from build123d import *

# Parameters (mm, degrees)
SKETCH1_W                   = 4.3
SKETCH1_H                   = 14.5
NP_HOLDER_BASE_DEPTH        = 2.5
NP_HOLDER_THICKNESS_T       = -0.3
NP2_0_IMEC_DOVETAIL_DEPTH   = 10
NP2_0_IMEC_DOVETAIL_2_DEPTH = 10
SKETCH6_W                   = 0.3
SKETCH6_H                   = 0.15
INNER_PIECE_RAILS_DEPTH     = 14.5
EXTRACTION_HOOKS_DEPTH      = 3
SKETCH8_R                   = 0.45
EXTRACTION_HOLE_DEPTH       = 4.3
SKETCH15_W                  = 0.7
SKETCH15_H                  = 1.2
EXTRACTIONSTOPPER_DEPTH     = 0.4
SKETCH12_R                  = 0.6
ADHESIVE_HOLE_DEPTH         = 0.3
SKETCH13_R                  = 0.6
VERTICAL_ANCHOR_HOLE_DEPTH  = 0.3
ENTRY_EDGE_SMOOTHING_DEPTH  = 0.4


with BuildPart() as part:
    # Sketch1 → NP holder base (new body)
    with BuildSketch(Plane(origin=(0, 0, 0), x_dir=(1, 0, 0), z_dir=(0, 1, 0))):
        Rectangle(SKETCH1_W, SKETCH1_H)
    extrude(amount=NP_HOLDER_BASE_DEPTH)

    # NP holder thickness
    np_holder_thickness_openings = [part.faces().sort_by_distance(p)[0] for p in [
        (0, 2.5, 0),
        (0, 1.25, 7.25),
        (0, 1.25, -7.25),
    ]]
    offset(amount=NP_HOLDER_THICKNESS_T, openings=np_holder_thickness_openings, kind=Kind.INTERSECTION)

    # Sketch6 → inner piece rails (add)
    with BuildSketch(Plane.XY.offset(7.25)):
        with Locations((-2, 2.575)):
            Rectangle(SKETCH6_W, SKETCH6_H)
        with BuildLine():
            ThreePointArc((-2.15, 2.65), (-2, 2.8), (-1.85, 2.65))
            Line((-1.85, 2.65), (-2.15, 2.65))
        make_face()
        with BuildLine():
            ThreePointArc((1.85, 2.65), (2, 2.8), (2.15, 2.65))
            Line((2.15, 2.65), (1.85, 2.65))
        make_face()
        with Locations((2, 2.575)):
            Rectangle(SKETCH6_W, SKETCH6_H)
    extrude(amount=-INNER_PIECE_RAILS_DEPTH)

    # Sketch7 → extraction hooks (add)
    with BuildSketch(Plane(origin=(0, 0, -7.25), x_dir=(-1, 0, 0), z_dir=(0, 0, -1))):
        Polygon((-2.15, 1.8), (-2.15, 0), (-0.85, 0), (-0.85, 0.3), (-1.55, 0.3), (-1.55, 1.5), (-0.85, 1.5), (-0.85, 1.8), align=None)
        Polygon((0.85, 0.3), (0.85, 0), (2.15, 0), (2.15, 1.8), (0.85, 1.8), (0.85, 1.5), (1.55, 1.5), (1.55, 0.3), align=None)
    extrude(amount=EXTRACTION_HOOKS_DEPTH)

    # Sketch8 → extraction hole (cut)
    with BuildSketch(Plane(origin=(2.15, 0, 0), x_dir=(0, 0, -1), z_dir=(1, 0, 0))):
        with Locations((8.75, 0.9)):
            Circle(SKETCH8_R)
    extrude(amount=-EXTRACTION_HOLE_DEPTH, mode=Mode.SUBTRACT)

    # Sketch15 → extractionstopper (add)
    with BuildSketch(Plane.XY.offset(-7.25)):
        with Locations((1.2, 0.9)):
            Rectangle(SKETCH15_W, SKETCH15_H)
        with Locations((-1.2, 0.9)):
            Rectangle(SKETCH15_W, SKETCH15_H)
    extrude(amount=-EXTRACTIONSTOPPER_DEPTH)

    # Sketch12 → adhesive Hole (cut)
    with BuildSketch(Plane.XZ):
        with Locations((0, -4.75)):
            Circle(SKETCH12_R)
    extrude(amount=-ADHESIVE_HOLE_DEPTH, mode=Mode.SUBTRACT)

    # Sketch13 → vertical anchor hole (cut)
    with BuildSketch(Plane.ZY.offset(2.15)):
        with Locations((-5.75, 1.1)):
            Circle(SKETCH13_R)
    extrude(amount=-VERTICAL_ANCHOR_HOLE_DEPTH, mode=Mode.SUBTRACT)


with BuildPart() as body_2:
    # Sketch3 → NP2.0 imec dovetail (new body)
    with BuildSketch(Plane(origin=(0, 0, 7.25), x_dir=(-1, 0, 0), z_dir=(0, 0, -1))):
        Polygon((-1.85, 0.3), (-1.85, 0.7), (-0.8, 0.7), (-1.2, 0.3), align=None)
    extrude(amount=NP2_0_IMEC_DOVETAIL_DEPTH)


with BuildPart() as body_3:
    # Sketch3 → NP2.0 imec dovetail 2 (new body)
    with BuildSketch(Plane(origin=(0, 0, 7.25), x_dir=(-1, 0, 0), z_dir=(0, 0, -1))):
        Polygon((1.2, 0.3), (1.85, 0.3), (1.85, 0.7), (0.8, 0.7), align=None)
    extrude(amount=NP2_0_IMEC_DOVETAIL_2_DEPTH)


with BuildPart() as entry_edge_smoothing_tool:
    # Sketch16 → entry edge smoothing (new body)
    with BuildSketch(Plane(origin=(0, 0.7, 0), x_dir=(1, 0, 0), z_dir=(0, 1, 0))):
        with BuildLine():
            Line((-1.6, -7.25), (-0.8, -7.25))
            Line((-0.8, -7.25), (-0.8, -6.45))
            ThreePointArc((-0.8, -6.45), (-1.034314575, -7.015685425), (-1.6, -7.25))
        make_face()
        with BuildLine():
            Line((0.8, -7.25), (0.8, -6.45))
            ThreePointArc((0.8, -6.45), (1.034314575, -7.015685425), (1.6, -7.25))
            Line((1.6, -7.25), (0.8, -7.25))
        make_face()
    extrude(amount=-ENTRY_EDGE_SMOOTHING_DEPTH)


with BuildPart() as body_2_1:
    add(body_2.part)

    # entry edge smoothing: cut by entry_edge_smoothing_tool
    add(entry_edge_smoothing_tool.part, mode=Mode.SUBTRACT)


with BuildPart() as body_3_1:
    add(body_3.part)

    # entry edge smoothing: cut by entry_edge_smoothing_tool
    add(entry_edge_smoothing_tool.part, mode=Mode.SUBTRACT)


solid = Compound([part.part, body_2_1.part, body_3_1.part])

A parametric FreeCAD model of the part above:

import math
import FreeCAD as App
import Part
import Sketcher

V = App.Vector
Q = App.Units.Quantity


def faces_at(feature, points):
    """Names of the faces that lie closest to the given points."""
    faces = feature.Shape.Faces
    near = lambda p: min(range(len(faces)), key=lambda i: faces[i].distToShape(Part.Vertex(*p))[0])
    return sorted({f"Face{near(p) + 1}" for p in points})


def add_polygon(sketch, points):
    """Adds a closed chain of lines whose ends are joined by coincident constraints."""
    first, n = sketch.GeometryCount, len(points)
    for a, b in zip(points, points[1:] + points[:1]):
        sketch.addGeometry(Part.LineSegment(App.Vector(*a, 0), App.Vector(*b, 0)), False)
    for i in range(n):
        sketch.addConstraint(Sketcher.Constraint("Coincident", first + i, 2, first + (i + 1) % n, 1))

doc = App.newDocument("Part")
body = doc.addObject("PartDesign::Body", "Body")

sketch1 = doc.addObject("Sketcher::SketchObject", "Sketch")
body.addObject(sketch1)
sketch1.AttachmentSupport = (doc.XZ_Plane, [""])
sketch1.MapMode = "FlatFace"
add_polygon(sketch1, [(-2.1, -7.2), (-2.1, 7.2), (2.1, 7.2), (2.1, -7.2)])
sketch1.addConstraint([
    Sketcher.Constraint("Vertical", 0),
    Sketcher.Constraint("Horizontal", 1),
    Sketcher.Constraint("Vertical", 2),
    Sketcher.Constraint("Horizontal", 3),
    Sketcher.Constraint("Symmetric", 0, 2, 2, 2, -1, 1),
    Sketcher.Constraint("DistanceX", 1, 1, 1, 2, Q("4.3 mm")),
    Sketcher.Constraint("DistanceY", 0, 1, 0, 2, Q("14.5 mm")),
])
pad1 = doc.addObject("PartDesign::Pad", "Pad")
body.addObject(pad1)
pad1.Profile = sketch1
pad1.Length = 2.5
pad1.Reversed = True
doc.recompute()

thickness = doc.addObject("PartDesign::Thickness", "Thickness")
body.addObject(thickness)
thickness.Base = (pad1, faces_at(pad1, [(0, 2.5, 0), (0, 1.25, 7.25), (0, 1.25, -7.25)]))
thickness.Value = 0.3
thickness.Reversed = True
thickness.Join = "Intersection"

sketch2 = doc.addObject("Sketcher::SketchObject", "Sketch001")
body.addObject(sketch2)
sketch2.AttachmentSupport = (doc.XY_Plane, [""])
sketch2.MapMode = "FlatFace"
sketch2.AttachmentOffset = App.Placement(V(0, 0, 7.25), App.Rotation())
sketch2.addGeometry([
    Part.LineSegment(V(-2.15, 2.65, 0), V(-2.15, 2.5, 0)),
    Part.LineSegment(V(-2.15, 2.5, 0), V(-1.85, 2.5, 0)),
    Part.LineSegment(V(-1.85, 2.5, 0), V(-1.85, 2.65, 0)),
    Part.ArcOfCircle(Part.Circle(V(-2, 2.65, 0), V(0, 0, 1), 0.15), math.radians(0), math.radians(180)),
    Part.ArcOfCircle(Part.Circle(V(2, 2.65, 0), V(0, 0, 1), 0.15), math.radians(0), math.radians(180)),
    Part.LineSegment(V(1.85, 2.65, 0), V(1.85, 2.5, 0)),
    Part.LineSegment(V(1.85, 2.5, 0), V(2.15, 2.5, 0)),
    Part.LineSegment(V(2.15, 2.5, 0), V(2.15, 2.65, 0)),
], False)
sketch2.addConstraint([
    Sketcher.Constraint("Coincident", 0, 2, 1, 1),
    Sketcher.Constraint("Coincident", 1, 2, 2, 1),
    Sketcher.Constraint("Tangent", 2, 2, 3, 1),
    Sketcher.Constraint("Tangent", 3, 2, 0, 1),
    Sketcher.Constraint("Tangent", 4, 2, 5, 1),
    Sketcher.Constraint("Coincident", 5, 2, 6, 1),
    Sketcher.Constraint("Coincident", 6, 2, 7, 1),
    Sketcher.Constraint("Tangent", 7, 2, 4, 1),
    Sketcher.Constraint("Vertical", 0),
    Sketcher.Constraint("Horizontal", 1),
    Sketcher.Constraint("Vertical", 2),
    Sketcher.Constraint("Vertical", 5),
    Sketcher.Constraint("Horizontal", 6),
    Sketcher.Constraint("Vertical", 7),
    Sketcher.Constraint("Equal", 3, 4),
    Sketcher.Constraint("Symmetric", 3, 3, 4, 3, -2),
    Sketcher.Constraint("Horizontal", 1, 2, 5, 2),
    Sketcher.Constraint("Radius", 3, Q("0.15 mm")),
    Sketcher.Constraint("DistanceX", 3, 3, -1, 1, Q("2 mm")),
    Sketcher.Constraint("DistanceY", 0, 2, 0, 1, Q("0.15 mm")),
    Sketcher.Constraint("DistanceY", -1, 1, 0, 2, Q("2.5 mm")),
])
pad2 = doc.addObject("PartDesign::Pad", "Pad001")
body.addObject(pad2)
pad2.Profile = sketch2
pad2.Length = 14.5
pad2.Reversed = True

sketch3 = doc.addObject("Sketcher::SketchObject", "Sketch002")
body.addObject(sketch3)
sketch3.AttachmentSupport = (doc.XY_Plane, [""])
sketch3.MapMode = "FlatFace"
sketch3.AttachmentOffset = App.Placement(V(0, 0, -7.25), App.Rotation())
add_polygon(sketch3, [(2.15, 1.8), (2.15, 0), (0.85, 0), (0.85, 0.3), (1.55, 0.3), (1.55, 1.5), (0.85, 1.5), (0.85, 1.8)])
add_polygon(sketch3, [(-0.85, 0.3), (-0.85, 0), (-2.15, 0), (-2.15, 1.8), (-0.85, 1.8), (-0.85, 1.5), (-1.55, 1.5), (-1.55, 0.3)])
sketch3.addConstraint([
    Sketcher.Constraint("Vertical", 0),
    Sketcher.Constraint("Horizontal", 1),
    Sketcher.Constraint("Vertical", 2),
    Sketcher.Constraint("Horizontal", 3),
    Sketcher.Constraint("Vertical", 4),
    Sketcher.Constraint("Horizontal", 5),
    Sketcher.Constraint("Vertical", 6),
    Sketcher.Constraint("Horizontal", 7),
    Sketcher.Constraint("Vertical", 8),
    Sketcher.Constraint("Horizontal", 9),
    Sketcher.Constraint("Vertical", 10),
    Sketcher.Constraint("Horizontal", 11),
    Sketcher.Constraint("Vertical", 12),
    Sketcher.Constraint("Horizontal", 13),
    Sketcher.Constraint("Vertical", 14),
    Sketcher.Constraint("Horizontal", 15),
    Sketcher.Constraint("Symmetric", 1, 2, 8, 2, -1, 1),
    Sketcher.Constraint("Symmetric", 0, 2, 9, 2, -2),
    Sketcher.Constraint("Symmetric", 6, 2, 11, 2, -2),
    Sketcher.Constraint("Symmetric", 4, 2, 13, 2, -2),
    Sketcher.Constraint("Horizontal", 3, 2, 14, 2),
    Sketcher.Constraint("Vertical", 2, 2, 5, 2),
    Sketcher.Constraint("Equal", 2, 6),
    Sketcher.Constraint("DistanceX", 1, 2, 1, 1, Q("1.3 mm")),
    Sketcher.Constraint("DistanceX", 3, 1, 3, 2, Q("0.7 mm")),
    Sketcher.Constraint("DistanceY", 0, 2, 0, 1, Q("1.8 mm")),
    Sketcher.Constraint("DistanceY", 2, 1, 2, 2, Q("0.3 mm")),
    Sketcher.Constraint("DistanceX", 9, 2, 1, 2, Q("3 mm")),
])
pad3 = doc.addObject("PartDesign::Pad", "Pad002")
body.addObject(pad3)
pad3.Profile = sketch3
pad3.Length = 3
pad3.Reversed = True

sketch4 = doc.addObject("Sketcher::SketchObject", "Sketch003")
body.addObject(sketch4)
sketch4.AttachmentSupport = (doc.YZ_Plane, [""])
sketch4.MapMode = "FlatFace"
sketch4.AttachmentOffset = App.Placement(V(0, 0, 2.15), App.Rotation())
sketch4.addGeometry(Part.Circle(V(0.9, -8.75, 0), V(0, 0, 1), 0.45), False)
sketch4.addConstraint([
    Sketcher.Constraint("Diameter", 0, Q("0.9 mm")),
    Sketcher.Constraint("DistanceX", -1, 1, 0, 3, Q("0.9 mm")),
    Sketcher.Constraint("DistanceY", 0, 3, -1, 1, Q("8.75 mm")),
])
pocket1 = doc.addObject("PartDesign::Pocket", "Pocket")
body.addObject(pocket1)
pocket1.Profile = sketch4
pocket1.Length = 4.3

sketch5 = doc.addObject("Sketcher::SketchObject", "Sketch004")
body.addObject(sketch5)
sketch5.AttachmentSupport = (doc.XY_Plane, [""])
sketch5.MapMode = "FlatFace"
sketch5.AttachmentOffset = App.Placement(V(0, 0, -7.25), App.Rotation())
add_polygon(sketch5, [(0.8, 1.5), (0.8, 0.3), (1.6, 0.3), (1.6, 1.5)])
add_polygon(sketch5, [(-1.6, 1.5), (-1.6, 0.3), (-0.8, 0.3), (-0.8, 1.5)])
sketch5.addConstraint([
    Sketcher.Constraint("Vertical", 0),
    Sketcher.Constraint("Horizontal", 1),
    Sketcher.Constraint("Vertical", 2),
    Sketcher.Constraint("Horizontal", 3),
    Sketcher.Constraint("Vertical", 4),
    Sketcher.Constraint("Horizontal", 5),
    Sketcher.Constraint("Vertical", 6),
    Sketcher.Constraint("Horizontal", 7),
    Sketcher.Constraint("Symmetric", 1, 2, 4, 2, -2),
    Sketcher.Constraint("Symmetric", 3, 2, 6, 2, -2),
    Sketcher.Constraint("DistanceX", 1, 1, 1, 2, Q("0.7 mm")),
    Sketcher.Constraint("DistanceY", 0, 2, 0, 1, Q("1.2 mm")),
    Sketcher.Constraint("DistanceY", -1, 1, 0, 2, Q("0.3 mm")),
    Sketcher.Constraint("DistanceX", 4, 2, 0, 2, Q("2.4 mm")),
])
pad4 = doc.addObject("PartDesign::Pad", "Pad003")
body.addObject(pad4)
pad4.Profile = sketch5
pad4.Length = 0.4
pad4.Reversed = True

sketch6 = doc.addObject("Sketcher::SketchObject", "Sketch005")
body.addObject(sketch6)
sketch6.AttachmentSupport = (doc.XZ_Plane, [""])
sketch6.MapMode = "FlatFace"
sketch6.addGeometry(Part.Circle(V(0, -4.8, 0), V(0, 0, 1), 0.6), False)
sketch6.addConstraint([
    Sketcher.Constraint("PointOnObject", 0, 3, -2),
    Sketcher.Constraint("Diameter", 0, Q("1.2 mm")),
    Sketcher.Constraint("DistanceY", 0, 3, -1, 1, Q("4.75 mm")),
])
pocket2 = doc.addObject("PartDesign::Pocket", "Pocket001")
body.addObject(pocket2)
pocket2.Profile = sketch6
pocket2.Length = 0.3

sketch7 = doc.addObject("Sketcher::SketchObject", "Sketch006")
body.addObject(sketch7)
sketch7.AttachmentSupport = (doc.YZ_Plane, [""])
sketch7.MapMode = "FlatFace"
sketch7.AttachmentOffset = App.Placement(V(0, 0, -2.15), App.Rotation())
sketch7.addGeometry(Part.Circle(V(1.1, -5.8, 0), V(0, 0, 1), 0.6), False)
sketch7.addConstraint([
    Sketcher.Constraint("Diameter", 0, Q("1.2 mm")),
    Sketcher.Constraint("DistanceX", -1, 1, 0, 3, Q("1.1 mm")),
    Sketcher.Constraint("DistanceY", 0, 3, -1, 1, Q("5.75 mm")),
])
pocket3 = doc.addObject("PartDesign::Pocket", "Pocket002")
body.addObject(pocket3)
pocket3.Profile = sketch7
pocket3.Length = 0.3
pocket3.Reversed = True
body2 = doc.addObject("PartDesign::Body", "Body001")

sketch8 = doc.addObject("Sketcher::SketchObject", "Sketch007")
body2.addObject(sketch8)
sketch8.AttachmentSupport = (doc.getObject("XY_Plane001"), [""])
sketch8.MapMode = "FlatFace"
sketch8.AttachmentOffset = App.Placement(V(0, 0, 7.25), App.Rotation())
add_polygon(sketch8, [(1.85, 0.7), (1.85, 0.3), (1.2, 0.3), (0.8, 0.7)])
sketch8.addConstraint([
    Sketcher.Constraint("Vertical", 0),
    Sketcher.Constraint("Horizontal", 1),
    Sketcher.Constraint("Horizontal", 3),
    Sketcher.Constraint("Angle", 2, Q("135 deg")),
    Sketcher.Constraint("DistanceY", 0, 2, 0, 1, Q("0.4 mm")),
    Sketcher.Constraint("DistanceX", 1, 2, 1, 1, Q("0.65 mm")),
    Sketcher.Constraint("DistanceY", -1, 1, 0, 2, Q("0.3 mm")),
    Sketcher.Constraint("DistanceX", -1, 1, 1, 2, Q("1.2 mm")),
])
pad5 = doc.addObject("PartDesign::Pad", "Pad004")
body2.addObject(pad5)
pad5.Profile = sketch8
pad5.Length = 10
pad5.Reversed = True
body3 = doc.addObject("PartDesign::Body", "Body002")

sketch9 = doc.addObject("Sketcher::SketchObject", "Sketch008")
body3.addObject(sketch9)
sketch9.AttachmentSupport = (doc.getObject("XY_Plane002"), [""])
sketch9.MapMode = "FlatFace"
sketch9.AttachmentOffset = App.Placement(V(0, 0, 7.25), App.Rotation())
add_polygon(sketch9, [(-1.2, 0.3), (-1.85, 0.3), (-1.85, 0.7), (-0.8, 0.7)])
sketch9.addConstraint([
    Sketcher.Constraint("Horizontal", 0),
    Sketcher.Constraint("Vertical", 1),
    Sketcher.Constraint("Horizontal", 2),
    Sketcher.Constraint("Angle", 3, Q("-135 deg")),
    Sketcher.Constraint("DistanceY", 1, 1, 1, 2, Q("0.4 mm")),
    Sketcher.Constraint("DistanceX", 0, 2, 0, 1, Q("0.65 mm")),
    Sketcher.Constraint("DistanceY", -1, 1, 0, 2, Q("0.3 mm")),
    Sketcher.Constraint("DistanceX", 2, 2, -1, 1, Q("0.8 mm")),
])
pad6 = doc.addObject("PartDesign::Pad", "Pad005")
body3.addObject(pad6)
pad6.Profile = sketch9
pad6.Length = 10
pad6.Reversed = True
body4 = doc.addObject("PartDesign::Body", "Body003")
body4.AllowCompound = True

sketch10 = doc.addObject("Sketcher::SketchObject", "Sketch009")
body4.addObject(sketch10)
sketch10.AttachmentSupport = (doc.getObject("XZ_Plane003"), [""])
sketch10.MapMode = "FlatFace"
sketch10.AttachmentOffset = App.Placement(V(0, 0, -0.7), App.Rotation())
sketch10.addGeometry([
    Part.LineSegment(V(-1.6, 7.2, 0), V(-0.8, 7.2, 0)),
    Part.LineSegment(V(-0.8, 7.2, 0), V(-0.8, 6.5, 0)),
    Part.ArcOfCircle(Part.Circle(V(-1.6, 6.5, 0), V(0, 0, 1), 0.8), math.radians(0), math.radians(90)),
    Part.LineSegment(V(0.8, 6.5, 0), V(0.8, 7.2, 0)),
    Part.LineSegment(V(0.8, 7.2, 0), V(1.6, 7.2, 0)),
    Part.ArcOfCircle(Part.Circle(V(1.6, 6.5, 0), V(0, 0, 1), 0.8), math.radians(90), math.radians(180)),
], False)
sketch10.addConstraint([
    Sketcher.Constraint("Coincident", 0, 2, 1, 1),
    Sketcher.Constraint("Tangent", 1, 2, 2, 1),
    Sketcher.Constraint("Tangent", 2, 2, 0, 1),
    Sketcher.Constraint("Coincident", 3, 2, 4, 1),
    Sketcher.Constraint("Tangent", 4, 2, 5, 1),
    Sketcher.Constraint("Tangent", 5, 2, 3, 1),
    Sketcher.Constraint("Horizontal", 0),
    Sketcher.Constraint("Vertical", 1),
    Sketcher.Constraint("Vertical", 3),
    Sketcher.Constraint("Horizontal", 4),
    Sketcher.Constraint("Equal", 2, 5),
    Sketcher.Constraint("Symmetric", 2, 3, 5, 3, -2),
    Sketcher.Constraint("Radius", 2, Q("0.8 mm")),
    Sketcher.Constraint("DistanceX", 2, 3, -1, 1, Q("1.6 mm")),
    Sketcher.Constraint("DistanceY", -1, 1, 2, 3, Q("6.45 mm")),
])
pad7 = doc.addObject("PartDesign::Pad", "Pad006")
body4.addObject(pad7)
pad7.Profile = sketch10
pad7.Length = 0.4
doc.recompute()

body5 = doc.addObject("PartDesign::Body", "Body004")
body5.BaseFeature = body4
boolean = doc.addObject("PartDesign::Boolean", "Boolean")
body2.addObject(boolean)
boolean.Type = "Cut"
boolean.addObjects([body5])
doc.recompute()

boolean2 = doc.addObject("PartDesign::Boolean", "Boolean001")
body3.addObject(boolean2)
boolean2.Type = "Cut"
boolean2.addObjects([body4])

doc.recompute()
